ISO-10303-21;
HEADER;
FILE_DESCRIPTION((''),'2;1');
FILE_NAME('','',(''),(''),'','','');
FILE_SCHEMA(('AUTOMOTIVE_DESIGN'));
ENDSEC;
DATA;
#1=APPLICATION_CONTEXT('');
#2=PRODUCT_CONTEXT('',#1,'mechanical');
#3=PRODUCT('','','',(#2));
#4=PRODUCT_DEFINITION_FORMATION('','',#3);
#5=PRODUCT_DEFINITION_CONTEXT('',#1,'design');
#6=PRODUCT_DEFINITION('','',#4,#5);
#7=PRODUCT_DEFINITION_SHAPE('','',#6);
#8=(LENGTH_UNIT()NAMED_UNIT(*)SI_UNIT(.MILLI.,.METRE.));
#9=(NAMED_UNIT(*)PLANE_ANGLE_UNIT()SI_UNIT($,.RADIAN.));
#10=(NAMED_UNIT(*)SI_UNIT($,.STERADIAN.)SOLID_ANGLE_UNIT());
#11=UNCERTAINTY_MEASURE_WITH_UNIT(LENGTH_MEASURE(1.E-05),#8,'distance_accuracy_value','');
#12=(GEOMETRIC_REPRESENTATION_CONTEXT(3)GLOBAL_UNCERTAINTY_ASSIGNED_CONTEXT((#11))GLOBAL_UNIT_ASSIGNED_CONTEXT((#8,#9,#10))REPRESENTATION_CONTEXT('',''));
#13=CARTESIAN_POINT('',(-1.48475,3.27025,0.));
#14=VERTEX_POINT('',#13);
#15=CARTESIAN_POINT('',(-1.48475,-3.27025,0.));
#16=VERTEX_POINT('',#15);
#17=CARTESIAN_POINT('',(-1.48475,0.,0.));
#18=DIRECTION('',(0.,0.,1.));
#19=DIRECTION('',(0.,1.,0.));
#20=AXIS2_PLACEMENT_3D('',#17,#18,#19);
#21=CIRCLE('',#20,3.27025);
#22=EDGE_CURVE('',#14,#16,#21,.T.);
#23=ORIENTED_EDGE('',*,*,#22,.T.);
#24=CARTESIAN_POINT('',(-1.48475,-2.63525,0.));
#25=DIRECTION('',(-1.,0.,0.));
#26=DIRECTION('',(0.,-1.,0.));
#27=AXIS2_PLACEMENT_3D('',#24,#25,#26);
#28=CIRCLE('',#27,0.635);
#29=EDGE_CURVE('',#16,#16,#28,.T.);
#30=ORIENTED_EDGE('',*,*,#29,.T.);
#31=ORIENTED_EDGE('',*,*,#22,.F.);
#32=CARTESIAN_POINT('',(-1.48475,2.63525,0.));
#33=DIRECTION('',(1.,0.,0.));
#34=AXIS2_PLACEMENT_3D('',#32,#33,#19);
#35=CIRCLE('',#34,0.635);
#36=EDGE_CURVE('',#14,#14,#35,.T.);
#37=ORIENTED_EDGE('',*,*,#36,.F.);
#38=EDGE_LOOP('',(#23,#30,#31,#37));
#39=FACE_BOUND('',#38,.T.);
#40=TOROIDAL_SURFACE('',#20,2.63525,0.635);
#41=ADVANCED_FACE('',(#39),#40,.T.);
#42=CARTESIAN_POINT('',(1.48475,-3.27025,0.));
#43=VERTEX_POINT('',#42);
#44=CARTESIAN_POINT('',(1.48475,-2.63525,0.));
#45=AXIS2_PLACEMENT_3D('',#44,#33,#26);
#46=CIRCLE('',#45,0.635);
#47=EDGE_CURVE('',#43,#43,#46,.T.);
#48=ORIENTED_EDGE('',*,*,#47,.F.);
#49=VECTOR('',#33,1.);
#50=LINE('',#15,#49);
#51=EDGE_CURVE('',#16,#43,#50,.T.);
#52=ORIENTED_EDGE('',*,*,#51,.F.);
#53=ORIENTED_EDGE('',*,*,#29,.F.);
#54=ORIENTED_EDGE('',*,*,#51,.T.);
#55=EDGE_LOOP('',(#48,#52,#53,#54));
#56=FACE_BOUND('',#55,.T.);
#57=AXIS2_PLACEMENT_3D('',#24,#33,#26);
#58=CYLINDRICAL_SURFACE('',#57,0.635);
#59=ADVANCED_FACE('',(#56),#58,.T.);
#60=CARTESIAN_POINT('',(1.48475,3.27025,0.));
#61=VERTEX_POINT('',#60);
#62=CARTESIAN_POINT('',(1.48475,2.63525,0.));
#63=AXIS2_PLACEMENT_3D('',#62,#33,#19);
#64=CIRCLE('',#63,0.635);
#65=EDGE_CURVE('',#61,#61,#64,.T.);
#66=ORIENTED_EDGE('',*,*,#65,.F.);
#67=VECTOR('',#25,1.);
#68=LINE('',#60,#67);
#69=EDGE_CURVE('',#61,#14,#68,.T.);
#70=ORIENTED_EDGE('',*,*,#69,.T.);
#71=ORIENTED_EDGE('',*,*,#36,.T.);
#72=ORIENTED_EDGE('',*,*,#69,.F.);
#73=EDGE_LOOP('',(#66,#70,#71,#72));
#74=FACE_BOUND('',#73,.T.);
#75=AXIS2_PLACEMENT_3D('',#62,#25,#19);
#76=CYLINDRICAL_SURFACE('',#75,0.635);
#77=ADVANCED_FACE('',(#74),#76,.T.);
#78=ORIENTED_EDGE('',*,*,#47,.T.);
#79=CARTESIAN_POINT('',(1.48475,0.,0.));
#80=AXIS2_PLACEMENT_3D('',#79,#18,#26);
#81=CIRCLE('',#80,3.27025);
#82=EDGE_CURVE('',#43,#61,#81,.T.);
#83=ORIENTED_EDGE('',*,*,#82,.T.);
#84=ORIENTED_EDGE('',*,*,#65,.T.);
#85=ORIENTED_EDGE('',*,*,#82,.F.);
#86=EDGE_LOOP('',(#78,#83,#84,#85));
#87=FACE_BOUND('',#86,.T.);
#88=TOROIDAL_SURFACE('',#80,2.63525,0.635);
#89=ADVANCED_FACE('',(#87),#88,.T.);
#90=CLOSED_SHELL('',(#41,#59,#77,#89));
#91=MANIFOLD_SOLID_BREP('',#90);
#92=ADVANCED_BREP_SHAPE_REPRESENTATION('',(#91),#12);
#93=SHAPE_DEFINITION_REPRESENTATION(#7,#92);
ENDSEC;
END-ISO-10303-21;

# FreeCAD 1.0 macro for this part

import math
import FreeCAD as App
import Part
import Sketcher
Q = App.Units.Quantity

doc = App.newDocument("Part")
body = doc.addObject("PartDesign::Body", "Body")

# Sketch on YZ plane
sketch1 = doc.addObject("Sketcher::SketchObject", "Sketch")
body.addObject(sketch1)
sketch1.AttachmentSupport = (doc.YZ_Plane, [""])
sketch1.MapMode = "FlatFace"
sketch1.AttachmentOffset = App.Placement(App.Vector(0, 0, -1.48475), App.Rotation())
sketch1.addGeometry(Part.Circle(App.Vector(2.6, 0, 0), App.Vector(0, 0, 1), 0.6), False)
sketch1.addConstraint(Sketcher.Constraint("PointOnObject", 0, 3, -1))
sketch1.addConstraint(Sketcher.Constraint("Diameter", 0, Q("0.05 in")))
sketch1.addConstraint(Sketcher.Constraint("DistanceX", -1, 1, 0, 3, Q("2.63525 mm")))

# Sketch on XY plane
sketch2 = doc.addObject("Sketcher::SketchObject", "Sketch001")
body.addObject(sketch2)
sketch2.AttachmentSupport = (doc.XY_Plane, [""])
sketch2.MapMode = "FlatFace"
sketch2.addGeometry(Part.ArcOfCircle(Part.Circle(App.Vector(-1.5, 0, 0), App.Vector(0, 0, 1), 2.6), math.radians(90), math.radians(270)), False)
sketch2.addGeometry(Part.LineSegment(App.Vector(-1.5, -2.6, 0), App.Vector(1.5, -2.6, 0)), False)
sketch2.addGeometry(Part.ArcOfCircle(Part.Circle(App.Vector(1.5, 0, 0), App.Vector(0, 0, 1), 2.6), math.radians(-90), math.radians(90)), False)
sketch2.addGeometry(Part.LineSegment(App.Vector(1.5, 2.6, 0), App.Vector(-1.5, 2.6, 0)), False)
sketch2.addConstraint(Sketcher.Constraint("Tangent", 0, 2, 1, 1))
sketch2.addConstraint(Sketcher.Constraint("Tangent", 1, 2, 2, 1))
sketch2.addConstraint(Sketcher.Constraint("Tangent", 2, 2, 3, 1))
sketch2.addConstraint(Sketcher.Constraint("Tangent", 3, 2, 0, 1))
sketch2.addConstraint(Sketcher.Constraint("Horizontal", 1))
sketch2.addConstraint(Sketcher.Constraint("Horizontal", 3))
sketch2.addConstraint(Sketcher.Constraint("Symmetric", 0, 3, 2, 3, -1, 1))
sketch2.addConstraint(Sketcher.Constraint("Radius", 0, Q("2.63525 mm")))
sketch2.addConstraint(Sketcher.Constraint("DistanceX", 1, 1, 1, 2, Q("2.9695 mm")))
doc.recompute()

additivepipe = doc.addObject("PartDesign::AdditivePipe", "AdditivePipe")
body.addObject(additivepipe)
additivepipe.Profile = sketch1
additivepipe.Spine = (sketch2, ["Edge1", "Edge2", "Edge3", "Edge4"])

doc.recompute()
